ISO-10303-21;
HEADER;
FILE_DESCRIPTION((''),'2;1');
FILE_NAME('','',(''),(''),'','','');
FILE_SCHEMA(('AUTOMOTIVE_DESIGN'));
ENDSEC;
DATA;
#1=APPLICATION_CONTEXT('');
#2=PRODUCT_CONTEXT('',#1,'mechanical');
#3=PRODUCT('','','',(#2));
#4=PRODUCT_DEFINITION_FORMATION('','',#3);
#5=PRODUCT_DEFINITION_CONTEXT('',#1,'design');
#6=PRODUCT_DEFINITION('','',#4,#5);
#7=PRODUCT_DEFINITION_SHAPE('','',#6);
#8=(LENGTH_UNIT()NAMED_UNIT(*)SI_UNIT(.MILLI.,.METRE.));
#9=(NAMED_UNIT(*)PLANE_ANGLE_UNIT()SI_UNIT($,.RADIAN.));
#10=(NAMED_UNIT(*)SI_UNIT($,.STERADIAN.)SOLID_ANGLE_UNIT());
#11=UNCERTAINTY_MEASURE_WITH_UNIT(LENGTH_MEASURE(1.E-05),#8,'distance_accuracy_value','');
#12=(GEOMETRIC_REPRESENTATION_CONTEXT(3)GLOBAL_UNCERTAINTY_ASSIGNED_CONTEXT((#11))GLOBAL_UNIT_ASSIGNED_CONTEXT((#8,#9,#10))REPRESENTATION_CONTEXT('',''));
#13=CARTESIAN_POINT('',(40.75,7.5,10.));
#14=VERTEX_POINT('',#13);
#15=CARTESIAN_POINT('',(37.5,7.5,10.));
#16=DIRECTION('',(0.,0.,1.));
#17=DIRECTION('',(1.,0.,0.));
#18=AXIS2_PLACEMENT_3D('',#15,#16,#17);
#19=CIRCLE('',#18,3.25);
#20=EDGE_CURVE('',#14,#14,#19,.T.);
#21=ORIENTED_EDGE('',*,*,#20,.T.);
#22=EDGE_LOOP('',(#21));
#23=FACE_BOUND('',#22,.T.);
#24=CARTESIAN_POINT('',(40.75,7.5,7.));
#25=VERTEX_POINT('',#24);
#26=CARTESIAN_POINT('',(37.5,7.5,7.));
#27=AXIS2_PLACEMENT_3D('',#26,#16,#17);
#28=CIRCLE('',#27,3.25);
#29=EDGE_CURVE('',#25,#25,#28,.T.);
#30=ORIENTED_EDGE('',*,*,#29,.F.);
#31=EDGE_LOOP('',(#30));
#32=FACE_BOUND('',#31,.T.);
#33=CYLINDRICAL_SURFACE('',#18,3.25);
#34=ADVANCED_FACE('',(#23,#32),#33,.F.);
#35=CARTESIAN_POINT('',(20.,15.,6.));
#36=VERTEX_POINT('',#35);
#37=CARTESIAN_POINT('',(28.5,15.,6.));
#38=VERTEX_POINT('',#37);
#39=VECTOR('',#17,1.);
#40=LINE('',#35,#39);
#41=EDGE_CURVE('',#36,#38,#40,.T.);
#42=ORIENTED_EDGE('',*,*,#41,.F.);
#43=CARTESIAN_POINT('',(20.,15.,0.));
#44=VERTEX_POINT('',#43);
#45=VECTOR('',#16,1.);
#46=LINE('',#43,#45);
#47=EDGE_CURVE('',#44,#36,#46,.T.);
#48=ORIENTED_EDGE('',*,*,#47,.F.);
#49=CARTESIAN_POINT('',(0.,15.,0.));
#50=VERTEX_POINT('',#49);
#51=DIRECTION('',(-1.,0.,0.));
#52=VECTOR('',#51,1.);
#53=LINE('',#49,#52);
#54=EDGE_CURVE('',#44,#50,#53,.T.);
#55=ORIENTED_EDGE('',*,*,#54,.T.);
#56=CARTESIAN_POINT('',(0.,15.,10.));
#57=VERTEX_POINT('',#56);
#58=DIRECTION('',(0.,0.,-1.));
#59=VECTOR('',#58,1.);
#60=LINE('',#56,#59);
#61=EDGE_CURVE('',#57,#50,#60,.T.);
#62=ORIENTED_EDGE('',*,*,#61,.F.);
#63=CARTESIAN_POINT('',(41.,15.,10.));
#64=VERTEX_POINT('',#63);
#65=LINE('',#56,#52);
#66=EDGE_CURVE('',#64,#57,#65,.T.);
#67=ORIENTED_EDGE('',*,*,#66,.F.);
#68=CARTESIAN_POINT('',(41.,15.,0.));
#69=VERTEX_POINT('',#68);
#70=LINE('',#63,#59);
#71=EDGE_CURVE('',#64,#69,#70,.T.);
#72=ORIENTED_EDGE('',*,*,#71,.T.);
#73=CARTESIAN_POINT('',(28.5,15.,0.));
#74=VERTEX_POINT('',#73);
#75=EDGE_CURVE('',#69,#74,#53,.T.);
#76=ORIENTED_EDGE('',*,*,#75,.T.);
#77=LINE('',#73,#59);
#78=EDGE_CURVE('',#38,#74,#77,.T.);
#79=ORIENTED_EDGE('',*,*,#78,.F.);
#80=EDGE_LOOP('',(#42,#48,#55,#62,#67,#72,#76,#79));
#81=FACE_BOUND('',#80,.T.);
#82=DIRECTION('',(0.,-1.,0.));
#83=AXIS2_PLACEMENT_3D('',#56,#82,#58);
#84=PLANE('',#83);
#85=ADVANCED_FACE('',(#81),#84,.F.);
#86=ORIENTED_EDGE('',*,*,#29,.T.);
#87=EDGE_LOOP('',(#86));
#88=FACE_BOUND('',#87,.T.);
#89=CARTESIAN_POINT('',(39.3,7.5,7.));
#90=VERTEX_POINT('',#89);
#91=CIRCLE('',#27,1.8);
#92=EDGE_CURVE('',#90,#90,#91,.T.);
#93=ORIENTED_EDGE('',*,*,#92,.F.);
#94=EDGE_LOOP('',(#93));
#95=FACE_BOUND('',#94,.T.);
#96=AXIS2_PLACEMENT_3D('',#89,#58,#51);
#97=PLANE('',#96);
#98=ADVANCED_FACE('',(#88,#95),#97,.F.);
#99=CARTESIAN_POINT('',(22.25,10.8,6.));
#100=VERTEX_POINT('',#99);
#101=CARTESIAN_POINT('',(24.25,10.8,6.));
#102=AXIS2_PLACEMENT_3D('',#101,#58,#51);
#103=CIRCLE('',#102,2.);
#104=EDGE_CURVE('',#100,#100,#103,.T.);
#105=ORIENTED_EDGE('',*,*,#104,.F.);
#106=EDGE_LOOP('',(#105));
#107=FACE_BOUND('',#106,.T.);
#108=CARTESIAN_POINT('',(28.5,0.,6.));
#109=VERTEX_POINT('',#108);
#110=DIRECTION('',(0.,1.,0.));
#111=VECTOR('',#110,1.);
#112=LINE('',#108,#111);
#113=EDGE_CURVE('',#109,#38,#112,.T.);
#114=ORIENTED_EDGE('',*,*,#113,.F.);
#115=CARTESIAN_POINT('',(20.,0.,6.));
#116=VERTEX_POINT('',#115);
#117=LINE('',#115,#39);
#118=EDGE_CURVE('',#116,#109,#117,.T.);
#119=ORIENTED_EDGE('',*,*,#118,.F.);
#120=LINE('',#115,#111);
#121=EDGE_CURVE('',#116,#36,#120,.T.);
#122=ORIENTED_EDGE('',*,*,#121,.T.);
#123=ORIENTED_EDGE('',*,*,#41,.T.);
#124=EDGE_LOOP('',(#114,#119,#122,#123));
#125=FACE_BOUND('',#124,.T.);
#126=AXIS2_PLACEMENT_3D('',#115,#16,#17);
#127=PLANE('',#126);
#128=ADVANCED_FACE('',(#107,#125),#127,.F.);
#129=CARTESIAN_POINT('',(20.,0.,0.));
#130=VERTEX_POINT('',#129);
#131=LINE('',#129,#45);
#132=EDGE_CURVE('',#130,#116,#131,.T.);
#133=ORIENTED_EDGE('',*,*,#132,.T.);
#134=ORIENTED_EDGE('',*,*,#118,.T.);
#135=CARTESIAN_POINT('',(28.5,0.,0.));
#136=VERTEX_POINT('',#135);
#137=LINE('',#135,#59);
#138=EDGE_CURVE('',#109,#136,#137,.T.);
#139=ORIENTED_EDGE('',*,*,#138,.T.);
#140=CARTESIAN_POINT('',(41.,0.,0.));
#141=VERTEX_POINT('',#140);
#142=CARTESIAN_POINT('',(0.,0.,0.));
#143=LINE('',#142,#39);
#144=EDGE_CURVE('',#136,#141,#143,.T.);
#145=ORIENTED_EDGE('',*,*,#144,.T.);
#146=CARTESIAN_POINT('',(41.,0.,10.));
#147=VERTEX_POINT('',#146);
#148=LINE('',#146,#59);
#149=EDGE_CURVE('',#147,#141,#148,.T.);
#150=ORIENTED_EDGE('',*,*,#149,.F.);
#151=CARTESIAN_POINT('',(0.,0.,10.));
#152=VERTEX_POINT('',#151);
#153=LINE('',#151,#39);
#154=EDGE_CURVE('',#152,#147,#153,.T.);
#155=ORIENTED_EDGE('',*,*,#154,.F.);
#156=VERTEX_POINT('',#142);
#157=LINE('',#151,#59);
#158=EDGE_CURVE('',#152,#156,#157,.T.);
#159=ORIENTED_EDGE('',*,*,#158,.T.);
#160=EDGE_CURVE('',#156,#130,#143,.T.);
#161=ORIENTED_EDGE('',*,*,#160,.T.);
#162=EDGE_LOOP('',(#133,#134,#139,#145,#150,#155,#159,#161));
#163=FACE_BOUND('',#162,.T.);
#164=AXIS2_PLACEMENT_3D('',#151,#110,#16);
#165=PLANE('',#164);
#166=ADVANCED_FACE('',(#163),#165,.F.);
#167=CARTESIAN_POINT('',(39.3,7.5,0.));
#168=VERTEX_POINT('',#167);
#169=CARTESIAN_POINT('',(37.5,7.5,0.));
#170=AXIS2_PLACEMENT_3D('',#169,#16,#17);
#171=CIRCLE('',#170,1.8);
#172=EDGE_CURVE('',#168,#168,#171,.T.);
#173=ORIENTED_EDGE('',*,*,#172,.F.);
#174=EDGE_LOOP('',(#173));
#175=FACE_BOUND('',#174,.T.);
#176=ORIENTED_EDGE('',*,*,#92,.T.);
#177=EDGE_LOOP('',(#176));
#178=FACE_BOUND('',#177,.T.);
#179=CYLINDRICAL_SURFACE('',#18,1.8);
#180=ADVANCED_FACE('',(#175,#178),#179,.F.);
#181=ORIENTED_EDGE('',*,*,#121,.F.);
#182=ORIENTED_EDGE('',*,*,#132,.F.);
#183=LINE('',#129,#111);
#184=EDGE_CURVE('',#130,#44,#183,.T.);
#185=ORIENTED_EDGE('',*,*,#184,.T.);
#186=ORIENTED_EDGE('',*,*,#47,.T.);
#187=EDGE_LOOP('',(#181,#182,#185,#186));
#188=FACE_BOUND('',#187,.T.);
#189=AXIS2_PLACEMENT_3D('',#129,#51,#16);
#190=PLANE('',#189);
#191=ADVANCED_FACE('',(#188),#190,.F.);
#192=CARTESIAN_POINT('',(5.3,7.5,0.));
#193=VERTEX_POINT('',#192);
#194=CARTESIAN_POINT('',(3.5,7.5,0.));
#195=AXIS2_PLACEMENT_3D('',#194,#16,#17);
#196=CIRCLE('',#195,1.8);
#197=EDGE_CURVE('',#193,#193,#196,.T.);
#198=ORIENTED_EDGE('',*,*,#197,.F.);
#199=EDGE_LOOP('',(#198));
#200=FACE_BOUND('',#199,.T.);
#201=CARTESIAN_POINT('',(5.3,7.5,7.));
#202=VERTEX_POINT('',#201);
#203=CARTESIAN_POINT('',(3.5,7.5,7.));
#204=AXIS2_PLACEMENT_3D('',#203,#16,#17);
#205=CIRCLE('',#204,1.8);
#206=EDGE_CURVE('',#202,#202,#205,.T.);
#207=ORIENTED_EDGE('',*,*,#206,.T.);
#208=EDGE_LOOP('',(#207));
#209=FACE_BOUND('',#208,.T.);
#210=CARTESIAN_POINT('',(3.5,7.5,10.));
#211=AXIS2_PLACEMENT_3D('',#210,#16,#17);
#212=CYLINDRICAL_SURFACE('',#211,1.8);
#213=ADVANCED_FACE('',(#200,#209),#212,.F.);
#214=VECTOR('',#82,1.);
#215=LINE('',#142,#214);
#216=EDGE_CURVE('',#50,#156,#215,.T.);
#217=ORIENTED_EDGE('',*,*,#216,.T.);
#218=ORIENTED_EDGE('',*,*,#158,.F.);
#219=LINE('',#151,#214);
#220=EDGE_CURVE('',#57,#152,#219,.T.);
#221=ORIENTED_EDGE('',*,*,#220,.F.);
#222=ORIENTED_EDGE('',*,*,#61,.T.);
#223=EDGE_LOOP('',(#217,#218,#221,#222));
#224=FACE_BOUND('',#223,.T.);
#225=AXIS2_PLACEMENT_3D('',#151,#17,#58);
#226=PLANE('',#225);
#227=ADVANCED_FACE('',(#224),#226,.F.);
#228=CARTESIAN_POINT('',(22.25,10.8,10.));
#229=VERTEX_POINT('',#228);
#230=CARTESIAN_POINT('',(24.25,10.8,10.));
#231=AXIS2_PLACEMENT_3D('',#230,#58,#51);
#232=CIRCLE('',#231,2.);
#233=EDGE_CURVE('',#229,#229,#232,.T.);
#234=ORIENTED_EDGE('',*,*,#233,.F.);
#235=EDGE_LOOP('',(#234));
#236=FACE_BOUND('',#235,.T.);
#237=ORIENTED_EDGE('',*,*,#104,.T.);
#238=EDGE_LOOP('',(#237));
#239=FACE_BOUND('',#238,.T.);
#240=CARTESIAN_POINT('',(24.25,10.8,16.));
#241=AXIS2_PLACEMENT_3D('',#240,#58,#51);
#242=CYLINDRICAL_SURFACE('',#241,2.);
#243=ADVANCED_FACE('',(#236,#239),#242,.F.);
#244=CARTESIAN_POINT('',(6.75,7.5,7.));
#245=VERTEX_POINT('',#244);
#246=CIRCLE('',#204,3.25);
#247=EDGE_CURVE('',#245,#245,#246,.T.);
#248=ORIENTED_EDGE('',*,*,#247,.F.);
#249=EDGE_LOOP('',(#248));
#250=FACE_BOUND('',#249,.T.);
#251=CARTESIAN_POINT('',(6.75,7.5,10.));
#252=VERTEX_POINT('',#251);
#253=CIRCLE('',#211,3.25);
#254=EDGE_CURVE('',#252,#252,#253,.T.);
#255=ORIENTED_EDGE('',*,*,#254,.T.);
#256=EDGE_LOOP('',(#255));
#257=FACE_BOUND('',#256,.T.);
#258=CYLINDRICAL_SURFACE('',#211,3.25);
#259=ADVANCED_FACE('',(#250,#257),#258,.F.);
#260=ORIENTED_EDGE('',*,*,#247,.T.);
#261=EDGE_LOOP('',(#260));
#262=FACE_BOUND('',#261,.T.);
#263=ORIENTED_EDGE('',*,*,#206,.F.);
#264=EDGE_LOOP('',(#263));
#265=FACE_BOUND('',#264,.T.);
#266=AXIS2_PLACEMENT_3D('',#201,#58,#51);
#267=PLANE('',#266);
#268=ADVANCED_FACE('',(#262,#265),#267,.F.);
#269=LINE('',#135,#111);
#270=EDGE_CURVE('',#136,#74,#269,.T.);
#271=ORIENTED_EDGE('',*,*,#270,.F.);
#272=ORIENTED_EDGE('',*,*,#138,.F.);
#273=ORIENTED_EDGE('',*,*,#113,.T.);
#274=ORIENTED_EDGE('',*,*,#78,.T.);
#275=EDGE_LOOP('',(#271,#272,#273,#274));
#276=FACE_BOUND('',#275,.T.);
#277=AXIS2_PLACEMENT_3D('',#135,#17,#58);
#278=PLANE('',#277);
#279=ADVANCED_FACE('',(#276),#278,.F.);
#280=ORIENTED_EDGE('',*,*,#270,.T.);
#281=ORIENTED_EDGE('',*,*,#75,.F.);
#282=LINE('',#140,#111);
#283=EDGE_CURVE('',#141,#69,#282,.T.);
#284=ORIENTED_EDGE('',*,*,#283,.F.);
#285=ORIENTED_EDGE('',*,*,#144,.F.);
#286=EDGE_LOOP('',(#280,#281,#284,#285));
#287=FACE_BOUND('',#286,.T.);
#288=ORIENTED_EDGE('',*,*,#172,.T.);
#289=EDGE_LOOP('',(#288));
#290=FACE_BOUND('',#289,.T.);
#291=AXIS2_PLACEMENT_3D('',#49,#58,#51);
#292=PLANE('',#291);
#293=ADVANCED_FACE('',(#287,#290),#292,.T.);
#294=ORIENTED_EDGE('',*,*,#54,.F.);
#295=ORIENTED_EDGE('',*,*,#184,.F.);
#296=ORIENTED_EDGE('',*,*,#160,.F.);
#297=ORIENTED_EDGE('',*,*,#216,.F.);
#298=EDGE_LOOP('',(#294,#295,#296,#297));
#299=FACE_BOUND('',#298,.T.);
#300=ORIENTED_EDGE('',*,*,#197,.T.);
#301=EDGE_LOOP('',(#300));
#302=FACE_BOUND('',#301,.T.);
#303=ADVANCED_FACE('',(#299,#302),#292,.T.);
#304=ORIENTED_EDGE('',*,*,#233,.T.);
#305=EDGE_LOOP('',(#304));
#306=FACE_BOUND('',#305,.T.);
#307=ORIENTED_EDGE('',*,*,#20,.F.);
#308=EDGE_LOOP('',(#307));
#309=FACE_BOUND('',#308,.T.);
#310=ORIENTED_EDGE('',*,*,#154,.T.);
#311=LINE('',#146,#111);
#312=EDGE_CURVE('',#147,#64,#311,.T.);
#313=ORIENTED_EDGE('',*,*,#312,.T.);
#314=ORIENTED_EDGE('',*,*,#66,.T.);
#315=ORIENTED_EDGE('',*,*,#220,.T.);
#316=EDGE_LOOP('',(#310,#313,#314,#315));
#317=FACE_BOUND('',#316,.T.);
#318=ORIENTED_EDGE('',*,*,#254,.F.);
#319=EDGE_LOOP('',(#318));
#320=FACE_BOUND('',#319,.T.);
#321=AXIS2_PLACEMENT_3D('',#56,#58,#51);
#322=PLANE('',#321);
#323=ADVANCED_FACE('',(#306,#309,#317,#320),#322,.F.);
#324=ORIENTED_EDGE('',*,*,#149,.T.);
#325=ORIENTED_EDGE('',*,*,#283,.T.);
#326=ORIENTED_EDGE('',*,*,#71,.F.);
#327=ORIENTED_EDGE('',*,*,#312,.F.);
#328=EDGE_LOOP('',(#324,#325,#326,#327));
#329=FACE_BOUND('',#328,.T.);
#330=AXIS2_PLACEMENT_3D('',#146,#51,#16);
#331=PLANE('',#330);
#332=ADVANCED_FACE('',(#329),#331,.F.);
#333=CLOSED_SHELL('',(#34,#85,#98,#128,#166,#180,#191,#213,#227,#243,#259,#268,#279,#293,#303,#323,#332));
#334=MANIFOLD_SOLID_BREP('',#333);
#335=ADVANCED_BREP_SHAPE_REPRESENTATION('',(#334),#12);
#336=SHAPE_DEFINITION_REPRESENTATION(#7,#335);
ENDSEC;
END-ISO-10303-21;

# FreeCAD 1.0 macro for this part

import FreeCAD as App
import Part
import Sketcher

doc = App.newDocument("Part")
body = doc.addObject("PartDesign::Body", "Body")

sketch1 = doc.addObject("Sketcher::SketchObject", "Sketch")
body.addObject(sketch1)
sketch1.AttachmentSupport = (doc.XY_Plane, [""])
sketch1.MapMode = "FlatFace"
sketch1.addGeometry(Part.LineSegment(App.Vector(0, 15, 0), App.Vector(0, 0, 0)), False)
sketch1.addGeometry(Part.LineSegment(App.Vector(0, 0, 0), App.Vector(41, 0, 0)), False)
sketch1.addGeometry(Part.LineSegment(App.Vector(41, 0, 0), App.Vector(41, 15, 0)), False)
sketch1.addGeometry(Part.LineSegment(App.Vector(41, 15, 0), App.Vector(0, 15, 0)), False)
sketch1.addConstraint(Sketcher.Constraint("Coincident", 0, 2, 1, 1))
sketch1.addConstraint(Sketcher.Constraint("Coincident", 1, 2, 2, 1))
sketch1.addConstraint(Sketcher.Constraint("Coincident", 2, 2, 3, 1))
sketch1.addConstraint(Sketcher.Constraint("Coincident", 3, 2, 0, 1))
sketch1.addConstraint(Sketcher.Constraint("Vertical", 0))
sketch1.addConstraint(Sketcher.Constraint("Horizontal", 1))
sketch1.addConstraint(Sketcher.Constraint("Vertical", 2))
sketch1.addConstraint(Sketcher.Constraint("Horizontal", 3))
sketch1.addConstraint(Sketcher.Constraint("Coincident", 0, 2, -1, 1))
sketch1.addConstraint(Sketcher.Constraint("DistanceX", 1, 1, 1, 2, 41.0))
sketch1.addConstraint(Sketcher.Constraint("DistanceY", 0, 2, 0, 1, 15.0))
pad1 = doc.addObject("PartDesign::Pad", "Pad")
body.addObject(pad1)
pad1.Profile = sketch1
pad1.Length = 10

sketch2 = doc.addObject("Sketcher::SketchObject", "Sketch001")
body.addObject(sketch2)
sketch2.AttachmentSupport = (doc.XY_Plane, [""])
sketch2.MapMode = "FlatFace"
sketch2.AttachmentOffset = App.Placement(App.Vector(0, 0, 10), App.Rotation())
sketch2.addGeometry(Part.Circle(App.Vector(3.5, 7.5, 0), App.Vector(0, 0, 1), 1.8), False)
sketch2.addGeometry(Part.Circle(App.Vector(37.5, 7.5, 0), App.Vector(0, 0, 1), 1.8), False)
sketch2.addConstraint(Sketcher.Constraint("Equal", 0, 1))
sketch2.addConstraint(Sketcher.Constraint("Horizontal", 0, 3, 1, 3))
sketch2.addConstraint(Sketcher.Constraint("Diameter", 0, 3.6))
sketch2.addConstraint(Sketcher.Constraint("DistanceX", 0, 3, 1, 3, 34.0))
sketch2.addConstraint(Sketcher.Constraint("DistanceX", -1, 1, 0, 3, 3.5))
sketch2.addConstraint(Sketcher.Constraint("DistanceY", -1, 1, 0, 3, 7.5))
doc.recompute()
hole = doc.addObject("PartDesign::Hole", "Hole")
body.addObject(hole)
hole.Profile = sketch2
hole.ThreadType = "None"
hole.Diameter = 3.6
hole.DepthType = "ThroughAll"
hole.HoleCutType = "Counterbore"
hole.HoleCutDiameter = 6.5
hole.HoleCutDepth = 3

sketch3 = doc.addObject("Sketcher::SketchObject", "Sketch002")
body.addObject(sketch3)
sketch3.AttachmentSupport = (doc.XZ_Plane, [""])
sketch3.MapMode = "FlatFace"
sketch3.AttachmentOffset = App.Placement(App.Vector(0, 0, -15), App.Rotation())
sketch3.addGeometry(Part.LineSegment(App.Vector(20, 0, 0), App.Vector(20, 6, 0)), False)
sketch3.addGeometry(Part.LineSegment(App.Vector(20, 6, 0), App.Vector(28, 6, 0)), False)
sketch3.addGeometry(Part.LineSegment(App.Vector(28, 6, 0), App.Vector(28, 0, 0)), False)
sketch3.addGeometry(Part.LineSegment(App.Vector(28, 0, 0), App.Vector(20, 0, 0)), False)
sketch3.addConstraint(Sketcher.Constraint("Coincident", 0, 2, 1, 1))
sketch3.addConstraint(Sketcher.Constraint("Coincident", 1, 2, 2, 1))
sketch3.addConstraint(Sketcher.Constraint("Coincident", 2, 2, 3, 1))
sketch3.addConstraint(Sketcher.Constraint("Coincident", 3, 2, 0, 1))
sketch3.addConstraint(Sketcher.Constraint("Vertical", 0))
sketch3.addConstraint(Sketcher.Constraint("Horizontal", 1))
sketch3.addConstraint(Sketcher.Constraint("Vertical", 2))
sketch3.addConstraint(Sketcher.Constraint("Horizontal", 3))
sketch3.addConstraint(Sketcher.Constraint("PointOnObject", 2, 2, -1))
sketch3.addConstraint(Sketcher.Constraint("DistanceY", 0, 1, 0, 2, 6.0))
sketch3.addConstraint(Sketcher.Constraint("DistanceX", 1, 1, 1, 2, 8.5))
sketch3.addConstraint(Sketcher.Constraint("DistanceX", -1, 1, 0, 2, 20.0))
pocket1 = doc.addObject("PartDesign::Pocket", "Pocket")
body.addObject(pocket1)
pocket1.Profile = sketch3
pocket1.Type = "ThroughAll"
pocket1.Reversed = True

sketch4 = doc.addObject("Sketcher::SketchObject", "Sketch003")
body.addObject(sketch4)
sketch4.AttachmentSupport = (doc.XY_Plane, [""])
sketch4.MapMode = "FlatFace"
sketch4.AttachmentOffset = App.Placement(App.Vector(0, 0, 6), App.Rotation())
sketch4.addGeometry(Part.Circle(App.Vector(24.2, 10.8, 0), App.Vector(0, 0, 1), 2), False)
sketch4.addConstraint(Sketcher.Constraint("Diameter", 0, 4.0))
sketch4.addConstraint(Sketcher.Constraint("DistanceY", -1, 1, 0, 3, 10.8))
sketch4.addConstraint(Sketcher.Constraint("DistanceX", -1, 1, 0, 3, 24.25))
pocket2 = doc.addObject("PartDesign::Pocket", "Pocket001")
body.addObject(pocket2)
pocket2.Profile = sketch4
pocket2.Length = 10
pocket2.Reversed = True

doc.recompute()
